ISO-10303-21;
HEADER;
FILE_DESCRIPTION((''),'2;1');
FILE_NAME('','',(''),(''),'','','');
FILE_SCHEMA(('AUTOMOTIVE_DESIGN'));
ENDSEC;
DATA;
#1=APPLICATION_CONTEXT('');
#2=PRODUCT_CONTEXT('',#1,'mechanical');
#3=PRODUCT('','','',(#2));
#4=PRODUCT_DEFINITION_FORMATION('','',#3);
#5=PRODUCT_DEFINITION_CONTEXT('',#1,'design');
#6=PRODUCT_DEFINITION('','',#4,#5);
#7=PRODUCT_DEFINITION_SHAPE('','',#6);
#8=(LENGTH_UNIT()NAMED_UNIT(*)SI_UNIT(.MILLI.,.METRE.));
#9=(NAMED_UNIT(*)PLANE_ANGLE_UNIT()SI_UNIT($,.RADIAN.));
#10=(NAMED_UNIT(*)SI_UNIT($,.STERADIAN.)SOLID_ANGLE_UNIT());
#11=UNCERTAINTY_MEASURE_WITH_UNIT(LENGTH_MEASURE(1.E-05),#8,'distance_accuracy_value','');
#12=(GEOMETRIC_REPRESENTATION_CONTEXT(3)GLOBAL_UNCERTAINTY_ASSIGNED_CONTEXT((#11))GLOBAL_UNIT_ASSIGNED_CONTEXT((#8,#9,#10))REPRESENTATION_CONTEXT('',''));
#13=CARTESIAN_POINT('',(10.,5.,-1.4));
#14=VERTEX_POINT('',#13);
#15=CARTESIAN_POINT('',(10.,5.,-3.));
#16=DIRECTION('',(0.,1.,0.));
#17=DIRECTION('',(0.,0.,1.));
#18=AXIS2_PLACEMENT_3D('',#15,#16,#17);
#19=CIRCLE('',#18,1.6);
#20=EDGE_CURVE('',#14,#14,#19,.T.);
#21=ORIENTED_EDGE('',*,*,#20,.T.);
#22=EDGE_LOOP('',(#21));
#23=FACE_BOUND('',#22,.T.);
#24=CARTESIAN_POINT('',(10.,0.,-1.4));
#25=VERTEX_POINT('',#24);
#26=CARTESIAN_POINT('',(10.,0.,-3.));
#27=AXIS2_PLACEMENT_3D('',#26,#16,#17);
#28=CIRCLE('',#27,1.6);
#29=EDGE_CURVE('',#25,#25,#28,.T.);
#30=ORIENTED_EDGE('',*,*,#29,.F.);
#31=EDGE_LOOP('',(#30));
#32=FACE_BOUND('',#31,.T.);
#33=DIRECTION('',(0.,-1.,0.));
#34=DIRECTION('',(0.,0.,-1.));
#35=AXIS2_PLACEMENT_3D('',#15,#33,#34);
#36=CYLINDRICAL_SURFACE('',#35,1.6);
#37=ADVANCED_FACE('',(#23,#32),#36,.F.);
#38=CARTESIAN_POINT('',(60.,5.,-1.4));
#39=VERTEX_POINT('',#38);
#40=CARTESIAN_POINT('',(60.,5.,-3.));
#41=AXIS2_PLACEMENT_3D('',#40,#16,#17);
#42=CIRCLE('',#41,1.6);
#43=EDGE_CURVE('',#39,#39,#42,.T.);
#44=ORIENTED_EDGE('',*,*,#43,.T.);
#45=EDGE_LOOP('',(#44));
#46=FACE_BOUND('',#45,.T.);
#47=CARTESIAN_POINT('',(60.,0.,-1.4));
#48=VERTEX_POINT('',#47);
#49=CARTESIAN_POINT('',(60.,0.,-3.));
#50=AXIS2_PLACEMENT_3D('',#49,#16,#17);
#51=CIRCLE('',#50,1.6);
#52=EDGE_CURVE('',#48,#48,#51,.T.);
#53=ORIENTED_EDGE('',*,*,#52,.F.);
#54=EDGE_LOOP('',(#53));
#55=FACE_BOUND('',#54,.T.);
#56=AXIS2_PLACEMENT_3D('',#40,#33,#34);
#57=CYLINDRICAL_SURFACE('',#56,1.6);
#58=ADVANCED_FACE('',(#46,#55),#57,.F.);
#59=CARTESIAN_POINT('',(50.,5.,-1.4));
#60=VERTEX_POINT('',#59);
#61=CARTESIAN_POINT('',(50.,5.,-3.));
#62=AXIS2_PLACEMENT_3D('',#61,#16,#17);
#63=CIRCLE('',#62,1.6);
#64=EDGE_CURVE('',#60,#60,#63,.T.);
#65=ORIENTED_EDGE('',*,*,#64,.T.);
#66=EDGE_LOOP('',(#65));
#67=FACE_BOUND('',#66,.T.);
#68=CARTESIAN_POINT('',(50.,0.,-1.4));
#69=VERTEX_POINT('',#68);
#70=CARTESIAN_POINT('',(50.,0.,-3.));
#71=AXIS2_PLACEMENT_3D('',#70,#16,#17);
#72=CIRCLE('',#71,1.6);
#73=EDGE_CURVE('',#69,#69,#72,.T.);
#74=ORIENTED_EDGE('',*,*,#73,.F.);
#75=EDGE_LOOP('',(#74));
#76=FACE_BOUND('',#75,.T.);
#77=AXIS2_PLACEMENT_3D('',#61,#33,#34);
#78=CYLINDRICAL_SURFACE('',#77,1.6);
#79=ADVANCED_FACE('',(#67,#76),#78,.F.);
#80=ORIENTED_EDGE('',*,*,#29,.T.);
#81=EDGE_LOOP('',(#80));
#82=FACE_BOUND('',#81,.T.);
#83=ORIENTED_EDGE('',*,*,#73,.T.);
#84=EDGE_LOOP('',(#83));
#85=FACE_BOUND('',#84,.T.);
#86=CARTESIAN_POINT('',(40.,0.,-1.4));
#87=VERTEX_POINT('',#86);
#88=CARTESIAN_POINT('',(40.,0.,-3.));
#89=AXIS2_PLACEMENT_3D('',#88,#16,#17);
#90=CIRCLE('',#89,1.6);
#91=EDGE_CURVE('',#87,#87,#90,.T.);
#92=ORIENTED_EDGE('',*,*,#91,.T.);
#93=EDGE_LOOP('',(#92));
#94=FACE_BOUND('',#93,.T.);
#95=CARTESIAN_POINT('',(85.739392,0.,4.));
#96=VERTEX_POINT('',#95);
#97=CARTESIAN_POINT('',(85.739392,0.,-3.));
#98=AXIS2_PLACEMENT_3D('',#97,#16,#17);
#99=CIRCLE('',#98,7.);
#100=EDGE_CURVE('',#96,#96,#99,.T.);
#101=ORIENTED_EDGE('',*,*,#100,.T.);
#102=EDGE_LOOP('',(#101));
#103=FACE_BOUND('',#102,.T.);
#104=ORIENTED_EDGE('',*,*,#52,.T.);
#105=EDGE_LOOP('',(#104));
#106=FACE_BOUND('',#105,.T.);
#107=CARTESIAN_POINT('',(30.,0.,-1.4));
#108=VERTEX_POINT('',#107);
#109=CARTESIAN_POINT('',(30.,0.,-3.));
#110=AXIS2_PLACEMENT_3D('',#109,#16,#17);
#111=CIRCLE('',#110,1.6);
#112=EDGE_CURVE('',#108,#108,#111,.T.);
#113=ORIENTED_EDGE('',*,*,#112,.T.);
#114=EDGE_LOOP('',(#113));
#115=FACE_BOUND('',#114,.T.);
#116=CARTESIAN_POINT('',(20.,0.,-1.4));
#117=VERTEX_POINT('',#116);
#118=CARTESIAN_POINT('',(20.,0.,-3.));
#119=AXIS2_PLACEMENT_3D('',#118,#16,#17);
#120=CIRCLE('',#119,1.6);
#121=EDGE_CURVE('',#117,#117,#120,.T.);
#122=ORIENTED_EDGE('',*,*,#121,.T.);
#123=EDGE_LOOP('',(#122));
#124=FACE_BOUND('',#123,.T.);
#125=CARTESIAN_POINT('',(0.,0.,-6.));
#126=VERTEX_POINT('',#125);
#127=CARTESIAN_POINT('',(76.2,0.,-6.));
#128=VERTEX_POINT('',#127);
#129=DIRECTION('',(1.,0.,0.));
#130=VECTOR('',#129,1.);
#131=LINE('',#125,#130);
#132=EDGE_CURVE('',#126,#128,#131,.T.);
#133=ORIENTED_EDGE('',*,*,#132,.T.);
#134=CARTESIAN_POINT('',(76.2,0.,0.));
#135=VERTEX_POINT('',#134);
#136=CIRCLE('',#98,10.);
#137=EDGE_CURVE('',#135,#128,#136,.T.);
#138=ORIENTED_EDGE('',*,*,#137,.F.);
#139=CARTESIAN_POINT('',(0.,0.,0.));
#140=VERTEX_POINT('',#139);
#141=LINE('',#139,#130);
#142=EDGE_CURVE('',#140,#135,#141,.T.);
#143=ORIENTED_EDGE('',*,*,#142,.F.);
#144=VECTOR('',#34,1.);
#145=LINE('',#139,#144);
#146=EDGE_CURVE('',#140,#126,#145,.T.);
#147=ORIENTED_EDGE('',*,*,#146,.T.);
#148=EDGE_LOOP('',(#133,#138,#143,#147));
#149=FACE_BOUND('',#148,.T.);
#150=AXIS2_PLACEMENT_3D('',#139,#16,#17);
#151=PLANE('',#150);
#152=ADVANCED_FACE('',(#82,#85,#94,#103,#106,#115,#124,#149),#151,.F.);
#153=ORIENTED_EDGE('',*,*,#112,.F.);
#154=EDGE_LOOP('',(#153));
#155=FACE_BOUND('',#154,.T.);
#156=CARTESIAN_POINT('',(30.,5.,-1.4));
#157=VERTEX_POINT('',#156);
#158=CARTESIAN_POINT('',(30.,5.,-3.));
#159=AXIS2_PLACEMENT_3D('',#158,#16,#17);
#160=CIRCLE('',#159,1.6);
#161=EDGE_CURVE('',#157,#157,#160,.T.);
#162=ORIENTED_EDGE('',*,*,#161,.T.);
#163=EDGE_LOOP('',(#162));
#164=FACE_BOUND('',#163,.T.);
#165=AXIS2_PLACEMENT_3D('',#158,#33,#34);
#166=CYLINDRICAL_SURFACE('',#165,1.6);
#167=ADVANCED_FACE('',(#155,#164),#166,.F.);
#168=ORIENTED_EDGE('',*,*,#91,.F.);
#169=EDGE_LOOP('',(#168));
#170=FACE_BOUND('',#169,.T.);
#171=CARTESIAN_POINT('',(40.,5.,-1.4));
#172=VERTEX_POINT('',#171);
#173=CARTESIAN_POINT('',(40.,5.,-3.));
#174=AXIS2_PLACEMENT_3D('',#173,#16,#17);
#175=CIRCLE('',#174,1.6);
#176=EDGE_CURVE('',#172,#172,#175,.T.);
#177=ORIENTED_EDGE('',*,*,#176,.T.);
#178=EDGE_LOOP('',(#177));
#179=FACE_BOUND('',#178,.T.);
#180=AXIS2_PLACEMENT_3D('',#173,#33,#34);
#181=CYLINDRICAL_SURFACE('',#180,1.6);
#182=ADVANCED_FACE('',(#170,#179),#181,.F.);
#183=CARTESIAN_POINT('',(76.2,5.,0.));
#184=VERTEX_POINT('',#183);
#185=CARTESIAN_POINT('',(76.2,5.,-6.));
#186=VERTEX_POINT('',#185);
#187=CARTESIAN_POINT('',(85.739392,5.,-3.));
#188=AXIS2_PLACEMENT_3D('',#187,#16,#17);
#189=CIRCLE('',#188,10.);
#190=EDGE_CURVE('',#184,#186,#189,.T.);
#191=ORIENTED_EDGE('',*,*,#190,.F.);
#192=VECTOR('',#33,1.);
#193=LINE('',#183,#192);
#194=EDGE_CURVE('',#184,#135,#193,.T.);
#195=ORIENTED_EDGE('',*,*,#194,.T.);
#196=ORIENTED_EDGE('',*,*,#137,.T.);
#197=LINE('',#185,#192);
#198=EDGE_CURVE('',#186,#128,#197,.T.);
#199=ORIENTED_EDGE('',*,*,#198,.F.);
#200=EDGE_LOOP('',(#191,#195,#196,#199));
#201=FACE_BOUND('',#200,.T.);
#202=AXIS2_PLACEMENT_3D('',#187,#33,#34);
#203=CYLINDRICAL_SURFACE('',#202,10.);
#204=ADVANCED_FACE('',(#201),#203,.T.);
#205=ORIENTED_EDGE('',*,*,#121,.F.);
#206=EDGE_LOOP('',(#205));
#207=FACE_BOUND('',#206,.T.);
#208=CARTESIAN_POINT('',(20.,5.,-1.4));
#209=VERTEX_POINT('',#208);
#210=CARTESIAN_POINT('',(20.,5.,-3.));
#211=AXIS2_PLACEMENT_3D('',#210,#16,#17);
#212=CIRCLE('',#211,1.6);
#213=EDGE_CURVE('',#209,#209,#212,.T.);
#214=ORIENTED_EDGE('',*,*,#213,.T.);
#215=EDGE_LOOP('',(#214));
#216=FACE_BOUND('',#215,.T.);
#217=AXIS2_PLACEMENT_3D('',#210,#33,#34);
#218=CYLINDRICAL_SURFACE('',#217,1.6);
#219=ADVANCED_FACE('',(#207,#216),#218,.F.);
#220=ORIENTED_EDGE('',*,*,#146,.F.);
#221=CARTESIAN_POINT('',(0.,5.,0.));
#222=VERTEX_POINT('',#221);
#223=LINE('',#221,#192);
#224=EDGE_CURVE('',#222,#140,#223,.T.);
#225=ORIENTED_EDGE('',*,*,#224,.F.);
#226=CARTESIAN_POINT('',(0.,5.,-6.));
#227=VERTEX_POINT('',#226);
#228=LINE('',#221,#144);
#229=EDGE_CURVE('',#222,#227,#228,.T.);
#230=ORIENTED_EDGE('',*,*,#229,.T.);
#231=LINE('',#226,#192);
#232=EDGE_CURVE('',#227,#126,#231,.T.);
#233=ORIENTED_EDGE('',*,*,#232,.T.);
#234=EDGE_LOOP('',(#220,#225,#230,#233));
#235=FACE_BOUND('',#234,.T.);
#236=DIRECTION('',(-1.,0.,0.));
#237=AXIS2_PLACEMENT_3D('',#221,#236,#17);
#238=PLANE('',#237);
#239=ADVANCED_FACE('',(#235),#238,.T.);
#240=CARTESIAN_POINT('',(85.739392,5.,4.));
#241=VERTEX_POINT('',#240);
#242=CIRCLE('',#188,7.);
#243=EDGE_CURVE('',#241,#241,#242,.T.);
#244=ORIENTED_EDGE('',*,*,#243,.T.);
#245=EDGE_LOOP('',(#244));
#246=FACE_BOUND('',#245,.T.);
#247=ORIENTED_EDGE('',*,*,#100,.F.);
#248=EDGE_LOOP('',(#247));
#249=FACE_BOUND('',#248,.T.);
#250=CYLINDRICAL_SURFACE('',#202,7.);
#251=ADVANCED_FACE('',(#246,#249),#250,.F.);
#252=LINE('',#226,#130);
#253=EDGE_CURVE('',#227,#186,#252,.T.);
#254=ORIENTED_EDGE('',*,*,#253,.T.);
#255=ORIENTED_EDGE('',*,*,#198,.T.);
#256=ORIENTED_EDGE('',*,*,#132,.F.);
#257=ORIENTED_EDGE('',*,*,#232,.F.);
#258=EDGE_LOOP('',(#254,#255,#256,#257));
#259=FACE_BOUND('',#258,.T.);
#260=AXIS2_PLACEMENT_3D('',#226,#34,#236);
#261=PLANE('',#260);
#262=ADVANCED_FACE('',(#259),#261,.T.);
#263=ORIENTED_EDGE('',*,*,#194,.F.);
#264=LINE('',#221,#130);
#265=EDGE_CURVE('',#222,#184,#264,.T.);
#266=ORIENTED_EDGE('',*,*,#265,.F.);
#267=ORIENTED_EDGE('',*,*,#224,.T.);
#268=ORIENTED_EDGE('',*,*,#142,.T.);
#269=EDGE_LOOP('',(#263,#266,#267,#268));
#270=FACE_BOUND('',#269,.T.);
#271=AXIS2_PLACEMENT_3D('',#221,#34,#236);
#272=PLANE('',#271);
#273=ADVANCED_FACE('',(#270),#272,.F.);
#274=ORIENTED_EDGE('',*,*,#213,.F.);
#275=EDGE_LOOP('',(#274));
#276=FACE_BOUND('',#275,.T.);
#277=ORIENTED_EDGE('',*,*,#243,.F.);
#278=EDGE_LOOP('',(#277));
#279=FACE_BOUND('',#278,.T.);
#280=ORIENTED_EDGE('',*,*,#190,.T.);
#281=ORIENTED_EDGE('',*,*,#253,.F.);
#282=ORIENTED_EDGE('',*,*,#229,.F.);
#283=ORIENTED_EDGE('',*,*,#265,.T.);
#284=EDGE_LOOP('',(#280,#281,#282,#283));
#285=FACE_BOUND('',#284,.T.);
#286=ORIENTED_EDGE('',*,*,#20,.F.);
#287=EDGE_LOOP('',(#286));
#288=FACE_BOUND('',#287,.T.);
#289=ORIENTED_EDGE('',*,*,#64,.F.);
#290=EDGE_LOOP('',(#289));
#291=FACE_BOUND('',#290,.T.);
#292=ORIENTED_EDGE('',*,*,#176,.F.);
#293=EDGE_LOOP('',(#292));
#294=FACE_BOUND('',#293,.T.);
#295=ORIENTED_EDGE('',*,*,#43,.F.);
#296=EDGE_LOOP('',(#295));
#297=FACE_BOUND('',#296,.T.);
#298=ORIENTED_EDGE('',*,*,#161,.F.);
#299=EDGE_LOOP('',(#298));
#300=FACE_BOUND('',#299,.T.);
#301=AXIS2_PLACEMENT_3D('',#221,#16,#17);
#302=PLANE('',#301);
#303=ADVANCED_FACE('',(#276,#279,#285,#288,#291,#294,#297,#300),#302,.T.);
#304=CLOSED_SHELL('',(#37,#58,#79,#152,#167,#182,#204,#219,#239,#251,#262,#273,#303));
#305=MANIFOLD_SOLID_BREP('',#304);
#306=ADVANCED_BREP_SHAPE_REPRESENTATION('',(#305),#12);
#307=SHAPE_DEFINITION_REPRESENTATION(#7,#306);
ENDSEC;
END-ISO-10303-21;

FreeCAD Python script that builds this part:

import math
import FreeCAD as App
import Part
import Sketcher
from FreeCAD import Vector
Q = App.Units.Quantity

doc = App.newDocument("Part")
params = doc.addObject("Spreadsheet::Sheet", "Params")
for row, (alias, value) in enumerate([
    ("sketch1_diameter", "14 mm"),
    ("sketch1_radius", "10 mm"),
    ("sketch1_diameter2", "3.2 mm"),
    ("sketch1_height", "6 mm"),
    ("sketch1_width", "76.2 mm"),
    ("pad1_length", "5 mm"),
], start=1):
    params.set(f"A{row}", alias)
    params.set(f"B{row}", "=" + value)
    params.setAlias(f"B{row}", alias)

body = doc.addObject("PartDesign::Body", "Body")

# Sketch on XZ plane
sketch1 = body.newObject("Sketcher::SketchObject", "Sketch")
sketch1.AttachmentSupport = (doc.getObject("XZ_Plane"), [""])
sketch1.MapMode = "FlatFace"
sketch1.addGeometry([
    Part.ArcOfCircle(Part.Circle(Vector(85.7, -3, 0), Vector(0, 0, 1), 10), math.radians(0), math.radians(163)),  # 0
    Part.ArcOfCircle(Part.Circle(Vector(85.7, -3, 0), Vector(0, 0, 1), 10), math.radians(-163), math.radians(0)),  # 1
    Part.LineSegment(Vector(76.2, -6, 0), Vector(0, -6, 0)),  # 2
    Part.LineSegment(Vector(0, -6, 0), Vector(0, 0, 0)),  # 3
    Part.LineSegment(Vector(0, 0, 0), Vector(76.2, 0, 0)),  # 4
    Part.Circle(Vector(85.7, -3, 0), Vector(0, 0, 1), 7),  # 5
    Part.Circle(Vector(10, -3, 0), Vector(0, 0, 1), 1.6),  # 6
    Part.Circle(Vector(20, -3, 0), Vector(0, 0, 1), 1.6),  # 7
    Part.Circle(Vector(30, -3, 0), Vector(0, 0, 1), 1.6),  # 8
    Part.Circle(Vector(40, -3, 0), Vector(0, 0, 1), 1.6),  # 9
    Part.Circle(Vector(50, -3, 0), Vector(0, 0, 1), 1.6),  # 10
    Part.Circle(Vector(60, -3, 0), Vector(0, 0, 1), 1.6),  # 11
], False)
sketch1.addConstraint([
    Sketcher.Constraint("Tangent", 0, 1, 1, 2),
    Sketcher.Constraint("Coincident", 1, 1, 2, 1),
    Sketcher.Constraint("Coincident", 2, 2, 3, 1),
    Sketcher.Constraint("Coincident", 3, 2, 4, 1),
    Sketcher.Constraint("Coincident", 4, 2, 0, 2),
    Sketcher.Constraint("Horizontal", 2),
    Sketcher.Constraint("Vertical", 3),
    Sketcher.Constraint("Horizontal", 4),
    Sketcher.Constraint("Coincident", 3, 2, -1, 1),
    Sketcher.Constraint("Coincident", 5, 3, 0, 3),
    Sketcher.Constraint("Equal", 0, 1),
    Sketcher.Constraint("Equal", 6, 7),
    Sketcher.Constraint("Equal", 7, 8),
    Sketcher.Constraint("Equal", 8, 9),
    Sketcher.Constraint("Equal", 9, 10),
    Sketcher.Constraint("Equal", 10, 11),
    Sketcher.Constraint("Horizontal", 5, 3, 6, 3),
    Sketcher.Constraint("Horizontal", 6, 3, 7, 3),
    Sketcher.Constraint("Horizontal", 7, 3, 8, 3),
    Sketcher.Constraint("Horizontal", 8, 3, 9, 3),
    Sketcher.Constraint("Horizontal", 9, 3, 10, 3),
    Sketcher.Constraint("Horizontal", 10, 3, 11, 3),
    Sketcher.Constraint("Horizontal", 11, 3, 0, 1),
    Sketcher.Constraint("Vertical", 1, 1, 4, 2),
    Sketcher.Constraint("Diameter", 5, Q("14 mm")),
    Sketcher.Constraint("Radius", 0, Q("10 mm")),
    Sketcher.Constraint("Diameter", 6, Q("3.2 mm")),
    Sketcher.Constraint("DistanceY", 3, 1, 3, 2, Q("6 mm")),
    Sketcher.Constraint("DistanceX", 2, 2, 2, 1, Q("76.2 mm")),
    Sketcher.Constraint("DistanceX", -1, 1, 6, 3, Q("10 mm")),
    Sketcher.Constraint("DistanceX", -1, 1, 7, 3, Q("20 mm")),
    Sketcher.Constraint("DistanceX", -1, 1, 8, 3, Q("30 mm")),
    Sketcher.Constraint("DistanceX", -1, 1, 9, 3, Q("40 mm")),
    Sketcher.Constraint("DistanceX", -1, 1, 10, 3, Q("50 mm")),
    Sketcher.Constraint("DistanceX", -1, 1, 11, 3, Q("60 mm")),
])
sketch1.setExpression("Constraints[24]", "Params.sketch1_diameter")
sketch1.setExpression("Constraints[25]", "Params.sketch1_radius")
sketch1.setExpression("Constraints[26]", "Params.sketch1_diameter2")
sketch1.setExpression("Constraints[27]", "Params.sketch1_height")
sketch1.setExpression("Constraints[28]", "Params.sketch1_width")
pad1 = body.newObject("PartDesign::Pad", "Pad")
pad1.Profile = sketch1
pad1.setExpression("Length", "Params.pad1_length")
pad1.Reversed = True

doc.recompute()
